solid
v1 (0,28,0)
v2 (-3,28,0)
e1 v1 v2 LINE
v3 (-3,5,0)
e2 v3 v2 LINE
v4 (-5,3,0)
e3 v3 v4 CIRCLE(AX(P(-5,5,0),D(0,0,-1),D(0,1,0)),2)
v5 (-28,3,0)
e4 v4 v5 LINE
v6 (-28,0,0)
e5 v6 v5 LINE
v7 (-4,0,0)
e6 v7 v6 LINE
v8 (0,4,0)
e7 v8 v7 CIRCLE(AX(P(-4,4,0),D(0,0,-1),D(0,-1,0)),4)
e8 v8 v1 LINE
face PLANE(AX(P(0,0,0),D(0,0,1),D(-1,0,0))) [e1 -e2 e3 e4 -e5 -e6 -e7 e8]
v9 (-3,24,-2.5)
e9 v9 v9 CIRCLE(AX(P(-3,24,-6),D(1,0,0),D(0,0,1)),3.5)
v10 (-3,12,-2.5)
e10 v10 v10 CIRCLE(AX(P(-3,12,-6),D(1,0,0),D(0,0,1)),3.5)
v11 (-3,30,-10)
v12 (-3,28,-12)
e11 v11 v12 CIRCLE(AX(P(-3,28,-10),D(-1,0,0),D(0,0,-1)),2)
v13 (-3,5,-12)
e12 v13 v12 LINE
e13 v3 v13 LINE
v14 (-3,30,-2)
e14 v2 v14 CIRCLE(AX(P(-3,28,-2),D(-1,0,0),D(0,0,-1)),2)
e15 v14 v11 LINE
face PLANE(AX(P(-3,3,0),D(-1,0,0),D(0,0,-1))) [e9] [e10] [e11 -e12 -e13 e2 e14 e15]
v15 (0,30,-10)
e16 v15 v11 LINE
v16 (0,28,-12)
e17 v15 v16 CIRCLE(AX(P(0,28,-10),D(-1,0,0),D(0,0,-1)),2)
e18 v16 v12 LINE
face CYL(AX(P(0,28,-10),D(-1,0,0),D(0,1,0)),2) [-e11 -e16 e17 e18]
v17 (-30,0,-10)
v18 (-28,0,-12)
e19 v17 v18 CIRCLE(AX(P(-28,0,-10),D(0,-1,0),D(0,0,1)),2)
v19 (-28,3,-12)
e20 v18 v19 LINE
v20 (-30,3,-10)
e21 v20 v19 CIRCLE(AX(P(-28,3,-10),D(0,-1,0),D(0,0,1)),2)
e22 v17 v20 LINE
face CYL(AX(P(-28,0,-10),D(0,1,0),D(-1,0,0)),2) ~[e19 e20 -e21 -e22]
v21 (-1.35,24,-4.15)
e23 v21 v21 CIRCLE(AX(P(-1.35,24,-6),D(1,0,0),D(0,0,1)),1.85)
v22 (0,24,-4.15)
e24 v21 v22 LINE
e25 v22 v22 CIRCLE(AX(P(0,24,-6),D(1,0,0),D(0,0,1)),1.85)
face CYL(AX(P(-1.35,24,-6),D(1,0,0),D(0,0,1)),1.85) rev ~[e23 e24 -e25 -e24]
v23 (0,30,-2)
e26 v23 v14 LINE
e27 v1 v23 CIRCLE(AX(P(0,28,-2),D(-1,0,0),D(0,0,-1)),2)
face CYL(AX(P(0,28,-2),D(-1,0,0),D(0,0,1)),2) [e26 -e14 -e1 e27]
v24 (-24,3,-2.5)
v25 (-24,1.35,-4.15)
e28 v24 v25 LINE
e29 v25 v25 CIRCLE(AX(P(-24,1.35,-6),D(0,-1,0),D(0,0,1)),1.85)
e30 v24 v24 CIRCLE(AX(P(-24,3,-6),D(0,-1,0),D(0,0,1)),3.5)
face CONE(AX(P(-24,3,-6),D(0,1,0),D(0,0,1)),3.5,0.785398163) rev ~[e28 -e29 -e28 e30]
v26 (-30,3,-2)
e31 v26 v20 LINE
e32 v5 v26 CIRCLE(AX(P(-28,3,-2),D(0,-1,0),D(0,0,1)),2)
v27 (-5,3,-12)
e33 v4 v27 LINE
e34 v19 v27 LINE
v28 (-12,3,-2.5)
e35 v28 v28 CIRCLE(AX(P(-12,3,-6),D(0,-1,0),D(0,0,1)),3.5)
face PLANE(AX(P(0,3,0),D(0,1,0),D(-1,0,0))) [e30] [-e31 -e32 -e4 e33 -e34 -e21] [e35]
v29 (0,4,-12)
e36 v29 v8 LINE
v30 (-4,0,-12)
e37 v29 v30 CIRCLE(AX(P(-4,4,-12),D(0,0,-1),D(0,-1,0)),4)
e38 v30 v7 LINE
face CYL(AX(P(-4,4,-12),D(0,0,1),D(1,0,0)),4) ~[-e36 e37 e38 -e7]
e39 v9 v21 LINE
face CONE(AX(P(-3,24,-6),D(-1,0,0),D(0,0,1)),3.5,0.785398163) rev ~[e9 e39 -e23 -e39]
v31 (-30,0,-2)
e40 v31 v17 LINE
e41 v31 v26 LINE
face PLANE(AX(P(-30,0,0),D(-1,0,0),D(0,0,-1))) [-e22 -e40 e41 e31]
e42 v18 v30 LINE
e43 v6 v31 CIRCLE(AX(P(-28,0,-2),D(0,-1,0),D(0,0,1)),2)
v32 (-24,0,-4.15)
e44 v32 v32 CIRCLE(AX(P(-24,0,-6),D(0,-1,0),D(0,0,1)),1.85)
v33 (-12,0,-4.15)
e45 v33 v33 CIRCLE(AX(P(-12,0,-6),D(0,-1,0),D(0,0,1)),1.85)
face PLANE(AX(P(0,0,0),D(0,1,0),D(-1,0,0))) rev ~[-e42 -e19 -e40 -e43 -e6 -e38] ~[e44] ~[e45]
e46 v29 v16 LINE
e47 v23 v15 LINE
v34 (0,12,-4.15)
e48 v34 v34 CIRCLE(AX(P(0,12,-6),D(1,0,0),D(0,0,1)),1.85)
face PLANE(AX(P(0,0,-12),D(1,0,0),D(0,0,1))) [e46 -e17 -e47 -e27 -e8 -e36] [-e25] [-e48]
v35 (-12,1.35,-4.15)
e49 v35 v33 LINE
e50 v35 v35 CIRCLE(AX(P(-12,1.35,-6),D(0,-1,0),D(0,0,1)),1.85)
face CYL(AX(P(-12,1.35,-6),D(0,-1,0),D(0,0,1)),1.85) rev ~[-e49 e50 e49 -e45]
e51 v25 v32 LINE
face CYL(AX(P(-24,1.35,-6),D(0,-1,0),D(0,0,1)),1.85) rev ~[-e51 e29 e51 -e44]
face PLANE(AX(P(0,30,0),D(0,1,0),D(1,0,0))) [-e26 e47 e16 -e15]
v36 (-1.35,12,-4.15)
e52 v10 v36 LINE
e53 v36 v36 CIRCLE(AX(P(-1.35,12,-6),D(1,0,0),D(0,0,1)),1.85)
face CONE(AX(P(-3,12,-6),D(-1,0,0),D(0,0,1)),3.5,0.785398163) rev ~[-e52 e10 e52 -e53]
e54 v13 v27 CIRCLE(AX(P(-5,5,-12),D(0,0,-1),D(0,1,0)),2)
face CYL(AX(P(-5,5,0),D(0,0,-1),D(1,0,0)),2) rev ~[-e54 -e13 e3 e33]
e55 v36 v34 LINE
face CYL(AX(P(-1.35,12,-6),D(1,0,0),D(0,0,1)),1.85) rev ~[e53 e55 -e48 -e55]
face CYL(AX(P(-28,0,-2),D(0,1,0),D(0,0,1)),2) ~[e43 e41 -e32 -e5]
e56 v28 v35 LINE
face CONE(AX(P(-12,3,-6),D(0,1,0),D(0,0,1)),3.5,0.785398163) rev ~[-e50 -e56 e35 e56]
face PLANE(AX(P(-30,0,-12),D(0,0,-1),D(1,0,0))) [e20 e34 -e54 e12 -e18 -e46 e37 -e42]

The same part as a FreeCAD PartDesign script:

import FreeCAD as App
import Part
import Sketcher
from FreeCAD import Vector


def edges_at(feature, points):
    """Names of the edges that pass closest to the given points."""
    edges = feature.Shape.Edges
    near = lambda p: min(range(len(edges)), key=lambda i: edges[i].distToShape(Part.Vertex(*p))[0])
    return sorted({f"Edge{near(p) + 1}" for p in points})

doc = App.newDocument("Part")
body = doc.addObject("PartDesign::Body", "Body")

# Sketch on XZ plane
sketch1 = body.newObject("Sketcher::SketchObject", "Sketch")
sketch1.AttachmentSupport = (doc.getObject("XZ_Plane"), [""])
sketch1.MapMode = "FlatFace"
sketch1.addGeometry([
    Part.LineSegment(Vector(-30, 0, 0), Vector(0, 0, 0)),
    Part.LineSegment(Vector(0, 0, 0), Vector(0, -12, 0)),
    Part.LineSegment(Vector(0, -12, 0), Vector(-30, -12, 0)),
    Part.LineSegment(Vector(-30, -12, 0), Vector(-30, 0, 0)),
], False)
sketch1.addConstraint([
    Sketcher.Constraint("Coincident", 0, 2, 1, 1),
    Sketcher.Constraint("Coincident", 1, 2, 2, 1),
    Sketcher.Constraint("Coincident", 2, 2, 3, 1),
    Sketcher.Constraint("Coincident", 3, 2, 0, 1),
    Sketcher.Constraint("Horizontal", 0),
    Sketcher.Constraint("Vertical", 1),
    Sketcher.Constraint("Horizontal", 2),
    Sketcher.Constraint("Vertical", 3),
    Sketcher.Constraint("Coincident", 0, 2, -1, 1),
    Sketcher.Constraint("DistanceX", 0, 1, 0, 2, 30.0),
    Sketcher.Constraint("DistanceY", 1, 2, 1, 1, 12.0),
])
pad1 = body.newObject("PartDesign::Pad", "Pad")
pad1.Profile = sketch1
pad1.Length = 3
pad1.Reversed = True

# Sketch on XZ plane
sketch2 = body.newObject("Sketcher::SketchObject", "Sketch001")
sketch2.AttachmentSupport = (doc.getObject("XZ_Plane"), [""])
sketch2.MapMode = "FlatFace"
sketch2.AttachmentOffset = App.Placement(Vector(0, 0, -3), App.Rotation())
sketch2.addGeometry([
    Part.LineSegment(Vector(-3, 0, 0), Vector(0, 0, 0)),
    Part.LineSegment(Vector(0, 0, 0), Vector(0, -12, 0)),
    Part.LineSegment(Vector(0, -12, 0), Vector(-3, -12, 0)),
    Part.LineSegment(Vector(-3, -12, 0), Vector(-3, 0, 0)),
], False)
sketch2.addConstraint([
    Sketcher.Constraint("Coincident", 0, 2, 1, 1),
    Sketcher.Constraint("Coincident", 1, 2, 2, 1),
    Sketcher.Constraint("Coincident", 2, 2, 3, 1),
    Sketcher.Constraint("Coincident", 3, 2, 0, 1),
    Sketcher.Constraint("Horizontal", 0),
    Sketcher.Constraint("Vertical", 1),
    Sketcher.Constraint("Horizontal", 2),
    Sketcher.Constraint("Vertical", 3),
    Sketcher.Constraint("Coincident", 0, 2, -1, 1),
    Sketcher.Constraint("DistanceX", 0, 1, 0, 2, 3.0),
    Sketcher.Constraint("DistanceY", 1, 2, 1, 1, 12.0),
])
pad2 = body.newObject("PartDesign::Pad", "Pad001")
pad2.Profile = sketch2
pad2.Length = 27
pad2.Reversed = True

# Sketch on XZ plane
sketch3 = body.newObject("Sketcher::SketchObject", "Sketch002")
sketch3.AttachmentSupport = (doc.getObject("XZ_Plane"), [""])
sketch3.MapMode = "FlatFace"
sketch3.AttachmentOffset = App.Placement(Vector(0, 0, -3), App.Rotation())
sketch3.addGeometry([
    Part.Circle(Vector(-24, -6, 0), Vector(0, 0, 1), 1.9),
    Part.Circle(Vector(-12, -6, 0), Vector(0, 0, 1), 1.9),
], False)
sketch3.addConstraint([
    Sketcher.Constraint("Equal", 0, 1),
    Sketcher.Constraint("Horizontal", 0, 3, 1, 3),
    Sketcher.Constraint("Diameter", 0, 3.7),
    Sketcher.Constraint("DistanceX", 0, 3, -1, 1, 24.0),
    Sketcher.Constraint("DistanceY", 0, 3, -1, 1, 6.0),
    Sketcher.Constraint("DistanceX", 1, 3, -1, 1, 12.0),
])
doc.recompute()
hole = body.newObject("PartDesign::Hole", "Hole")
hole.Profile = sketch3
hole.ThreadType = "None"
hole.Diameter = 3.7
hole.DepthType = "ThroughAll"
hole.HoleCutType = "Countersink"
hole.HoleCutDiameter = 7
hole.HoleCutCountersinkAngle = 90
hole.Reversed = True

# Sketch on YZ plane
sketch4 = body.newObject("Sketcher::SketchObject", "Sketch003")
sketch4.AttachmentSupport = (doc.getObject("YZ_Plane"), [""])
sketch4.MapMode = "FlatFace"
sketch4.AttachmentOffset = App.Placement(Vector(0, 0, -3), App.Rotation())
sketch4.addGeometry([
    Part.Circle(Vector(12, -6, 0), Vector(0, 0, 1), 1.9),
    Part.Circle(Vector(24, -6, 0), Vector(0, 0, 1), 1.9),
], False)
sketch4.addConstraint([
    Sketcher.Constraint("Equal", 0, 1),
    Sketcher.Constraint("Horizontal", 0, 3, 1, 3),
    Sketcher.Constraint("Diameter", 0, 3.7),
    Sketcher.Constraint("DistanceX", -1, 1, 0, 3, 12.0),
    Sketcher.Constraint("DistanceY", 0, 3, -1, 1, 6.0),
    Sketcher.Constraint("DistanceX", -1, 1, 1, 3, 24.0),
])
doc.recompute()
hole2 = body.newObject("PartDesign::Hole", "Hole001")
hole2.Profile = sketch4
hole2.ThreadType = "None"
hole2.Diameter = 3.7
hole2.DepthType = "ThroughAll"
hole2.HoleCutType = "Countersink"
hole2.HoleCutDiameter = 7
hole2.HoleCutCountersinkAngle = 90
hole2.Reversed = True
doc.recompute()

fillet = body.newObject("PartDesign::Fillet", "Fillet")
fillet.Base = (hole2, edges_at(hole2, [
    (-1.5, 30, -12),
    (-1.5, 30, 0),
    (-3, 3, -6),
    (-30, 1.5, 0),
    (-30, 1.5, -12),
]))
fillet.Radius = 2
doc.recompute()

fillet2 = body.newObject("PartDesign::Fillet", "Fillet001")
fillet2.Base = (fillet, edges_at(fillet, [(0, 0, -6)]))
fillet2.Radius = 4

doc.recompute()
